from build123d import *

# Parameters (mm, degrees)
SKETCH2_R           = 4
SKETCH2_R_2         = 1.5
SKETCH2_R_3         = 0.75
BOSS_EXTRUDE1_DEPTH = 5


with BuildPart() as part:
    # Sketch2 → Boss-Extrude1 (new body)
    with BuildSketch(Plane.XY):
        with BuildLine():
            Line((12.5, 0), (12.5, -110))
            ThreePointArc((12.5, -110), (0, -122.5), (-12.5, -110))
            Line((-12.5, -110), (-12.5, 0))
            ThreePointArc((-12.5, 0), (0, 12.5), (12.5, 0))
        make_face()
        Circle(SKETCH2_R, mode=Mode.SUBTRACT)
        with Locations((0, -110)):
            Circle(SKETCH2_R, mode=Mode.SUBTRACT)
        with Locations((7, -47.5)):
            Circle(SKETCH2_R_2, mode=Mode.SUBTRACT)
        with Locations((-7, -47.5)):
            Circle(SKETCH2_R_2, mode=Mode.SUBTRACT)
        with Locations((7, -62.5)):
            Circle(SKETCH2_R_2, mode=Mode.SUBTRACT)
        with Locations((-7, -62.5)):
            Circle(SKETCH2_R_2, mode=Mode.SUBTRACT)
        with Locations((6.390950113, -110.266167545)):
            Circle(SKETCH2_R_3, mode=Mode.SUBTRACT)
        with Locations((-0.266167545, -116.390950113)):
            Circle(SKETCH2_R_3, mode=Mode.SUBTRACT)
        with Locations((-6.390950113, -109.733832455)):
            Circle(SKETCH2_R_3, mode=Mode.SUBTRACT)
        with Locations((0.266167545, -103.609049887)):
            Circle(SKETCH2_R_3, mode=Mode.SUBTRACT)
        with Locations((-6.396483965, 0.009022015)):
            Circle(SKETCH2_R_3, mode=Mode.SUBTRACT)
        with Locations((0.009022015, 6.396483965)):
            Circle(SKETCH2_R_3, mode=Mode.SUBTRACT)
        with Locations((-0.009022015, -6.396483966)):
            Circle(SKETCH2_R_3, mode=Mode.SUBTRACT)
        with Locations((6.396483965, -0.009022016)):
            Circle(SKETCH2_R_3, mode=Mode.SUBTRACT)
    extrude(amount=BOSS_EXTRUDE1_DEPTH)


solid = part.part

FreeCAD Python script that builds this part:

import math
import FreeCAD as App
import Part
import Sketcher
Q = App.Units.Quantity

doc = App.newDocument("Part")
body = doc.addObject("PartDesign::Body", "Body")

# Sketch on XY plane
sketch1 = doc.addObject("Sketcher::SketchObject", "Sketch")
body.addObject(sketch1)
sketch1.AttachmentSupport = (doc.XY_Plane, [""])
sketch1.MapMode = "FlatFace"
sketch1.addGeometry(Part.LineSegment(App.Vector(12.5, -110, 0), App.Vector(12.5, 0, 0)), False)
sketch1.addGeometry(Part.ArcOfCircle(Part.Circle(App.Vector(0, 0, 0), App.Vector(0, 0, 1), 12.5), math.radians(0), math.radians(180)), False)
sketch1.addGeometry(Part.LineSegment(App.Vector(-12.5, 0, 0), App.Vector(-12.5, -110, 0)), False)
sketch1.addGeometry(Part.ArcOfCircle(Part.Circle(App.Vector(0, -110, 0), App.Vector(0, 0, 1), 12.5), math.radians(180), math.radians(360)), False)
sketch1.addGeometry(Part.Circle(App.Vector(6.4, -110.3, 0), App.Vector(0, 0, 1), 0.8), False)
sketch1.addGeometry(Part.Circle(App.Vector(0.3, -103.6, 0), App.Vector(0, 0, 1), 0.8), False)
sketch1.addGeometry(Part.Circle(App.Vector(7, -62.5, 0), App.Vector(0, 0, 1), 1.5), False)
sketch1.addGeometry(Part.Circle(App.Vector(-0.3, -116.4, 0), App.Vector(0, 0, 1), 0.8), False)
sketch1.addGeometry(Part.Circle(App.Vector(0, -110, 0), App.Vector(0, 0, 1), 4), False)
sketch1.addGeometry(Part.Circle(App.Vector(-6.4, -109.7, 0), App.Vector(0, 0, 1), 0.8), False)
sketch1.addGeometry(Part.Circle(App.Vector(-7, -62.5, 0), App.Vector(0, 0, 1), 1.5), False)
sketch1.addGeometry(Part.Circle(App.Vector(7, -47.5, 0), App.Vector(0, 0, 1), 1.5), False)
sketch1.addGeometry(Part.Circle(App.Vector(6.4, 0, 0), App.Vector(0, 0, 1), 0.8), False)
sketch1.addGeometry(Part.Circle(App.Vector(0, 6.4, 0), App.Vector(0, 0, 1), 0.8), False)
sketch1.addGeometry(Part.Circle(App.Vector(-7, -47.5, 0), App.Vector(0, 0, 1), 1.5), False)
sketch1.addGeometry(Part.Circle(App.Vector(0, -6.4, 0), App.Vector(0, 0, 1), 0.8), False)
sketch1.addGeometry(Part.Circle(App.Vector(0, 0, 0), App.Vector(0, 0, 1), 4), False)
sketch1.addGeometry(Part.Circle(App.Vector(-6.4, 0, 0), App.Vector(0, 0, 1), 0.8), False)
sketch1.addConstraint(Sketcher.Constraint("Tangent", 0, 2, 1, 1))
sketch1.addConstraint(Sketcher.Constraint("Tangent", 1, 2, 2, 1))
sketch1.addConstraint(Sketcher.Constraint("Tangent", 2, 2, 3, 1))
sketch1.addConstraint(Sketcher.Constraint("Tangent", 3, 2, 0, 1))
sketch1.addConstraint(Sketcher.Constraint("Vertical", 0))
sketch1.addConstraint(Sketcher.Constraint("Vertical", 2))
sketch1.addConstraint(Sketcher.Constraint("Coincident", 1, 3, -1, 1))
sketch1.addConstraint(Sketcher.Constraint("Coincident", 16, 3, -1, 1))
sketch1.addConstraint(Sketcher.Constraint("Coincident", 8, 3, 3, 3))
sketch1.addConstraint(Sketcher.Constraint("Equal", 4, 5))
sketch1.addConstraint(Sketcher.Constraint("Equal", 5, 7))
sketch1.addConstraint(Sketcher.Constraint("Equal", 7, 9))
sketch1.addConstraint(Sketcher.Constraint("Equal", 6, 10))
sketch1.addConstraint(Sketcher.Constraint("Equal", 10, 11))
sketch1.addConstraint(Sketcher.Constraint("Equal", 9, 12))
sketch1.addConstraint(Sketcher.Constraint("Equal", 12, 13))
sketch1.addConstraint(Sketcher.Constraint("Equal", 11, 14))
sketch1.addConstraint(Sketcher.Constraint("Equal", 13, 15))
sketch1.addConstraint(Sketcher.Constraint("Equal", 8, 16))
sketch1.addConstraint(Sketcher.Constraint("Equal", 15, 17))
sketch1.addConstraint(Sketcher.Constraint("Symmetric", 13, 3, 15, 3, -1, 1))
sketch1.addConstraint(Sketcher.Constraint("Symmetric", 12, 3, 17, 3, -1, 1))
sketch1.addConstraint(Sketcher.Constraint("Symmetric", 6, 3, 10, 3, -2))
sketch1.addConstraint(Sketcher.Constraint("Symmetric", 11, 3, 14, 3, -2))
sketch1.addConstraint(Sketcher.Constraint("Vertical", 6, 3, 11, 3))
sketch1.addConstraint(Sketcher.Constraint("Diameter", 6, Q("3 mm")))
sketch1.addConstraint(Sketcher.Constraint("Diameter", 8, Q("8 mm")))
sketch1.addConstraint(Sketcher.Constraint("Diameter", 4, Q("1.5 mm")))
sketch1.addConstraint(Sketcher.Constraint("Radius", 1, Q("12.5 mm")))
sketch1.addConstraint(Sketcher.Constraint("DistanceY", 0, 1, 0, 2, Q("110 mm")))
sketch1.addConstraint(Sketcher.Constraint("DistanceX", -1, 1, 6, 3, Q("7 mm")))
sketch1.addConstraint(Sketcher.Constraint("DistanceY", 6, 3, 11, 3, Q("15 mm")))
sketch1.addConstraint(Sketcher.Constraint("DistanceY", 6, 3, -1, 1, Q("62.5 mm")))
sketch1.addConstraint(Sketcher.Constraint("DistanceY", 7, 3, 5, 3, Q("12.7819 mm")))
sketch1.addConstraint(Sketcher.Constraint("DistanceX", 9, 3, 4, 3, Q("12.7819 mm")))
sketch1.addConstraint(Sketcher.Constraint("DistanceX", -1, 1, 4, 3, Q("6.39095 mm")))
sketch1.addConstraint(Sketcher.Constraint("DistanceY", 5, 3, -1, 1, Q("103.60905 mm")))
sketch1.addConstraint(Sketcher.Constraint("DistanceX", 13, 3, 12, 3, Q("6.387462 mm")))
sketch1.addConstraint(Sketcher.Constraint("DistanceY", 15, 3, 12, 3, Q("6.387462 mm")))
sketch1.addConstraint(Sketcher.Constraint("DistanceY", 4, 3, -1, 1, Q("110.266168 mm")))
sketch1.addConstraint(Sketcher.Constraint("DistanceX", -1, 1, 5, 3, Q("0.266168 mm")))
sketch1.addConstraint(Sketcher.Constraint("DistanceX", 7, 3, -1, 1, Q("0.266168 mm")))
sketch1.addConstraint(Sketcher.Constraint("DistanceY", 9, 3, -1, 1, Q("109.733832 mm")))
sketch1.addConstraint(Sketcher.Constraint("DistanceX", -1, 1, 12, 3, Q("6.396484 mm")))
sketch1.addConstraint(Sketcher.Constraint("DistanceY", 12, 3, -1, 1, Q("0.009022 mm")))
pad1 = doc.addObject("PartDesign::Pad", "Pad")
body.addObject(pad1)
pad1.Profile = sketch1
pad1.Length = 5

doc.recompute()
